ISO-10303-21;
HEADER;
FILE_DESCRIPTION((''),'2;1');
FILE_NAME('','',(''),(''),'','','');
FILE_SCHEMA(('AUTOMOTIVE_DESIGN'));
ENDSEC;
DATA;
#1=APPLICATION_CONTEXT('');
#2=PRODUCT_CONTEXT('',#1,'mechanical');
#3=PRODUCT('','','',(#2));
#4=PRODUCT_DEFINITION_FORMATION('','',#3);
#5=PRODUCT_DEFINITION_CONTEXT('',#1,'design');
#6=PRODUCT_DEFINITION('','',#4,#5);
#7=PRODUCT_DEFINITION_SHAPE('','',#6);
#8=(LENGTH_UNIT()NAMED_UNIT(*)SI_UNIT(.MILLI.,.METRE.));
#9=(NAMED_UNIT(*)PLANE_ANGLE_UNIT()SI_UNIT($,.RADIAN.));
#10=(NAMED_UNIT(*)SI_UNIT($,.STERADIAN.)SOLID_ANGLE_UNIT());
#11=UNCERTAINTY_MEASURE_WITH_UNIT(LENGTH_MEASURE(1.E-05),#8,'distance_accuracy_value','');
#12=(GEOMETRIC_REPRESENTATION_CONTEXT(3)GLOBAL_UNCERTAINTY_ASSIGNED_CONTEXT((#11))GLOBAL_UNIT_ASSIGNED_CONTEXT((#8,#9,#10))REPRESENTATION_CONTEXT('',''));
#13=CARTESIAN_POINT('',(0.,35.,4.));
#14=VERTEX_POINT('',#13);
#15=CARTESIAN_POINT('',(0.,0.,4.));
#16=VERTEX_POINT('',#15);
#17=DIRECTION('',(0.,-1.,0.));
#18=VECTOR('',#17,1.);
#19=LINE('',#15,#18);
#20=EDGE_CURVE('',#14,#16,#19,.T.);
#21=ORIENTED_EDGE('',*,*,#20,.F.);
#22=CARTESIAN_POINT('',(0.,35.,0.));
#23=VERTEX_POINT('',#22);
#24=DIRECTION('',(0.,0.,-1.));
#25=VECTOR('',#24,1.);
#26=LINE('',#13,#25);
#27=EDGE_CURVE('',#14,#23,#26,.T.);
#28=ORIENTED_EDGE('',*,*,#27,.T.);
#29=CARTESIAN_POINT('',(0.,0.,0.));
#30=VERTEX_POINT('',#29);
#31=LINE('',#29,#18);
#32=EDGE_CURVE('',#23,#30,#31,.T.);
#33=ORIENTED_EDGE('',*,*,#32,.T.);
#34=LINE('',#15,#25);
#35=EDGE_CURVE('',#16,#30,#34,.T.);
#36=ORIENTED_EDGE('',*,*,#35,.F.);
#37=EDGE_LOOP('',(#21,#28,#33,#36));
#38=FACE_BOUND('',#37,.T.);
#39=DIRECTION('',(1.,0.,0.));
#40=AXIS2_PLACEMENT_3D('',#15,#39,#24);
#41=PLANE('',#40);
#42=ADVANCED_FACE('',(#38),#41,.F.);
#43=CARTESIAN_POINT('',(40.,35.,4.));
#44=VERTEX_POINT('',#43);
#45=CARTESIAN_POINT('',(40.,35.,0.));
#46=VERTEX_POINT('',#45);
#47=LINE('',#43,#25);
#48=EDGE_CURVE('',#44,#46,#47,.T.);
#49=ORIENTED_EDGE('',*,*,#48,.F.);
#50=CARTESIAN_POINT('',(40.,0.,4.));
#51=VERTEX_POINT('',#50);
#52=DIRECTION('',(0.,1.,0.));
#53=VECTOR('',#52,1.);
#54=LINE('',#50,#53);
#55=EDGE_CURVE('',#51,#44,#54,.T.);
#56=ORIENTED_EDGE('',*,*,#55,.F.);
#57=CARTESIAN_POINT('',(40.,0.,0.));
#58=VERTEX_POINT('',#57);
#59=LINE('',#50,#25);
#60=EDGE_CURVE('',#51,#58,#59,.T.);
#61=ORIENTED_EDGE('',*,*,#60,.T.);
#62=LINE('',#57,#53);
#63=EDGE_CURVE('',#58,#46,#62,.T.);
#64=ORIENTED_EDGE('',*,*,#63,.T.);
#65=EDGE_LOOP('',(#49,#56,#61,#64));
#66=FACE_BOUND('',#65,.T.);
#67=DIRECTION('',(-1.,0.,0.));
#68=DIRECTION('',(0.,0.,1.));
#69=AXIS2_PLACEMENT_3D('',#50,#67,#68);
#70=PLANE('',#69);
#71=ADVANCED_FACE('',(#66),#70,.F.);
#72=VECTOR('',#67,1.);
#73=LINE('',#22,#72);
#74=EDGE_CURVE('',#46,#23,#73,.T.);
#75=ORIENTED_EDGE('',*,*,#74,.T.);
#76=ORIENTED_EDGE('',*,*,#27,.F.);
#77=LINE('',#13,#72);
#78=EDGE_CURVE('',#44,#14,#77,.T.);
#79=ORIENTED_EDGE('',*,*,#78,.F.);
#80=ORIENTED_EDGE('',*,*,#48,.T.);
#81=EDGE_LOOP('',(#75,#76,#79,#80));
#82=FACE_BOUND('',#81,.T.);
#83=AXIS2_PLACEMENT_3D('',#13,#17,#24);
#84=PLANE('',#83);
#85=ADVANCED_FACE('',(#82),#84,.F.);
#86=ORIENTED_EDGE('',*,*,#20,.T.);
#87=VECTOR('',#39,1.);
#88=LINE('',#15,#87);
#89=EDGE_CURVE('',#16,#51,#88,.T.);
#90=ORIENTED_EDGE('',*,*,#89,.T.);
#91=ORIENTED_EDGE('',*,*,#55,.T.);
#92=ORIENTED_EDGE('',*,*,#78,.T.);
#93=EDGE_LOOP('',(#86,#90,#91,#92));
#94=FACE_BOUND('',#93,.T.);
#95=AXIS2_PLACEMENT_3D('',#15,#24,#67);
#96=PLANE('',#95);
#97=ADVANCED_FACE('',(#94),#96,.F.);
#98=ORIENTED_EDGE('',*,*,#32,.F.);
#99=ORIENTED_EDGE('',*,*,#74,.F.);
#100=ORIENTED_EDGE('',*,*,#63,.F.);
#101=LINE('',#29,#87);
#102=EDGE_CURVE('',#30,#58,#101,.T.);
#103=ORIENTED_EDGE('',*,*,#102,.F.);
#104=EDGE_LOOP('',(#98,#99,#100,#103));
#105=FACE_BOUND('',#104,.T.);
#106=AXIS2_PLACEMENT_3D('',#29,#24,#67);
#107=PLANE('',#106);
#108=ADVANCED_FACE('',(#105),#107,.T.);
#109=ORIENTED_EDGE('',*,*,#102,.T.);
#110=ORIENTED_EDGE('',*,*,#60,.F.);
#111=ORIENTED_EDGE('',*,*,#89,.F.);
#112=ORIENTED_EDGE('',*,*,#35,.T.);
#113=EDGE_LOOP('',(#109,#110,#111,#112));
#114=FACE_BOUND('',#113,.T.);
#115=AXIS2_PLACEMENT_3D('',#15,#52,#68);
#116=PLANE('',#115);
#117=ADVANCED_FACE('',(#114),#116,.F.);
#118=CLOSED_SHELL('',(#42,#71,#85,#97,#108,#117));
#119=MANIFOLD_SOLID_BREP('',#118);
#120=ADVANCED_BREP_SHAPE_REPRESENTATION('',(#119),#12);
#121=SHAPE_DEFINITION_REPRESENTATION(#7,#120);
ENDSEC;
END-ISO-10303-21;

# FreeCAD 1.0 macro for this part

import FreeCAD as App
import Part
import Sketcher

V = App.Vector

doc = App.newDocument("Part")
params = doc.addObject("Spreadsheet::Sheet", "Params")
for row, (alias, value) in enumerate([
    ("sketch1_width", "40 mm"),
    ("sketch1_height", "35 mm"),
    ("pad1_length", "4 mm"),
], start=1):
    params.set(f"A{row}", alias)
    params.set(f"B{row}", "=" + value)
    params.setAlias(f"B{row}", alias)

body = doc.addObject("PartDesign::Body", "Body")

# Sketch on XY plane
sketch1 = body.newObject("Sketcher::SketchObject", "Sketch")
sketch1.AttachmentSupport = (doc.getObject("XY_Plane"), [""])
sketch1.MapMode = "FlatFace"
sketch1.addGeometry(Part.LineSegment(V(0, 35, 0), V(0, 0, 0)), False)
sketch1.addGeometry(Part.LineSegment(V(0, 0, 0), V(40, 0, 0)), False)
sketch1.addGeometry(Part.LineSegment(V(40, 0, 0), V(40, 35, 0)), False)
sketch1.addGeometry(Part.LineSegment(V(40, 35, 0), V(0, 35, 0)), False)
sketch1.addConstraint(Sketcher.Constraint("Coincident", 0, 2, 1, 1))
sketch1.addConstraint(Sketcher.Constraint("Coincident", 1, 2, 2, 1))
sketch1.addConstraint(Sketcher.Constraint("Coincident", 2, 2, 3, 1))
sketch1.addConstraint(Sketcher.Constraint("Coincident", 3, 2, 0, 1))
sketch1.addConstraint(Sketcher.Constraint("Vertical", 0))
sketch1.addConstraint(Sketcher.Constraint("Horizontal", 1))
sketch1.addConstraint(Sketcher.Constraint("Vertical", 2))
sketch1.addConstraint(Sketcher.Constraint("Horizontal", 3))
sketch1.addConstraint(Sketcher.Constraint("Coincident", 0, 2, -1, 1))
sketch1.addConstraint(Sketcher.Constraint("DistanceX", 1, 1, 1, 2, 40.0))
sketch1.addConstraint(Sketcher.Constraint("DistanceY", 0, 2, 0, 1, 35.0))
sketch1.setExpression("Constraints[9]", "Params.sketch1_width")
sketch1.setExpression("Constraints[10]", "Params.sketch1_height")
pad1 = body.newObject("PartDesign::Pad", "Pad")
pad1.Profile = sketch1
pad1.setExpression("Length", "Params.pad1_length")

doc.recompute()
